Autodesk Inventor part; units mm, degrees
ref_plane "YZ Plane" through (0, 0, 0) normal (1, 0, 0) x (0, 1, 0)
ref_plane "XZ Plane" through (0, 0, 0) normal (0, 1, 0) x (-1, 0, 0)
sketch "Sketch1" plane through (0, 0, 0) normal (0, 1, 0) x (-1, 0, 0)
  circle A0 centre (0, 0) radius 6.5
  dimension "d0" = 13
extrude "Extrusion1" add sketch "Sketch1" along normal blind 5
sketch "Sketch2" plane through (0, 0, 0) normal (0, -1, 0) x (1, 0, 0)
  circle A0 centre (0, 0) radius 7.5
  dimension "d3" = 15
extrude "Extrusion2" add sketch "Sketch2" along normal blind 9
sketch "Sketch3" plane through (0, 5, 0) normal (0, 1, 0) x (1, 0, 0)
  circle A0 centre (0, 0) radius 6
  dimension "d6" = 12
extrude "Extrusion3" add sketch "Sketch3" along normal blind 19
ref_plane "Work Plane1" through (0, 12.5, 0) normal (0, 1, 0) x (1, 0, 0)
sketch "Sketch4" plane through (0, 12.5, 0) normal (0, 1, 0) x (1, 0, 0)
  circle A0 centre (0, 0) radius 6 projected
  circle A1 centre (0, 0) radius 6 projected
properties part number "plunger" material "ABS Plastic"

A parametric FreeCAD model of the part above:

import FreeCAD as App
import Part
import Sketcher
Q = App.Units.Quantity

doc = App.newDocument("Part")
params = doc.addObject("Spreadsheet::Sheet", "Params")
for row, (alias, value) in enumerate([
    ("sketch1_diameter", "13 mm"),
    ("pad1_length", "5 mm"),
    ("sketch2_diameter", "15 mm"),
    ("pad2_length", "9 mm"),
    ("sketch3_diameter", "12 mm"),
    ("pad3_length", "19 mm"),
], start=1):
    params.set(f"A{row}", alias)
    params.set(f"B{row}", "=" + value)
    params.setAlias(f"B{row}", alias)

body = doc.addObject("PartDesign::Body", "Body")

sketch1 = doc.addObject("Sketcher::SketchObject", "Sketch")
body.addObject(sketch1)
sketch1.AttachmentSupport = (doc.XZ_Plane, [""])
sketch1.MapMode = "FlatFace"
sketch1.addGeometry(Part.Circle(App.Vector(0, 0, 0), App.Vector(0, 0, 1), 6), False)
sketch1.addConstraint(Sketcher.Constraint("Coincident", 0, 3, -1, 1))
sketch1.addConstraint(Sketcher.Constraint("Diameter", 0, Q("13 mm")))
sketch1.setExpression("Constraints[1]", "Params.sketch1_diameter")
pad1 = doc.addObject("PartDesign::Pad", "Pad")
body.addObject(pad1)
pad1.Profile = sketch1
pad1.setExpression("Length", "Params.pad1_length")
pad1.Reversed = True

sketch2 = doc.addObject("Sketcher::SketchObject", "Sketch001")
body.addObject(sketch2)
sketch2.AttachmentSupport = (doc.XZ_Plane, [""])
sketch2.MapMode = "FlatFace"
sketch2.addGeometry(Part.Circle(App.Vector(0, 0, 0), App.Vector(0, 0, 1), 8), False)
sketch2.addConstraint(Sketcher.Constraint("Coincident", 0, 3, -1, 1))
sketch2.addConstraint(Sketcher.Constraint("Diameter", 0, Q("15 mm")))
sketch2.setExpression("Constraints[1]", "Params.sketch2_diameter")
pad2 = doc.addObject("PartDesign::Pad", "Pad001")
body.addObject(pad2)
pad2.Profile = sketch2
pad2.setExpression("Length", "Params.pad2_length")

sketch3 = doc.addObject("Sketcher::SketchObject", "Sketch002")
body.addObject(sketch3)
sketch3.AttachmentSupport = (doc.XZ_Plane, [""])
sketch3.MapMode = "FlatFace"
sketch3.AttachmentOffset = App.Placement(App.Vector(0, 0, -5), App.Rotation())
sketch3.addGeometry(Part.Circle(App.Vector(0, 0, 0), App.Vector(0, 0, 1), 6), False)
sketch3.addConstraint(Sketcher.Constraint("Coincident", 0, 3, -1, 1))
sketch3.addConstraint(Sketcher.Constraint("Diameter", 0, Q("12 mm")))
sketch3.setExpression("Constraints[1]", "Params.sketch3_diameter")
pad3 = doc.addObject("PartDesign::Pad", "Pad002")
body.addObject(pad3)
pad3.Profile = sketch3
pad3.setExpression("Length", "Params.pad3_length")
pad3.Reversed = True

doc.recompute()
